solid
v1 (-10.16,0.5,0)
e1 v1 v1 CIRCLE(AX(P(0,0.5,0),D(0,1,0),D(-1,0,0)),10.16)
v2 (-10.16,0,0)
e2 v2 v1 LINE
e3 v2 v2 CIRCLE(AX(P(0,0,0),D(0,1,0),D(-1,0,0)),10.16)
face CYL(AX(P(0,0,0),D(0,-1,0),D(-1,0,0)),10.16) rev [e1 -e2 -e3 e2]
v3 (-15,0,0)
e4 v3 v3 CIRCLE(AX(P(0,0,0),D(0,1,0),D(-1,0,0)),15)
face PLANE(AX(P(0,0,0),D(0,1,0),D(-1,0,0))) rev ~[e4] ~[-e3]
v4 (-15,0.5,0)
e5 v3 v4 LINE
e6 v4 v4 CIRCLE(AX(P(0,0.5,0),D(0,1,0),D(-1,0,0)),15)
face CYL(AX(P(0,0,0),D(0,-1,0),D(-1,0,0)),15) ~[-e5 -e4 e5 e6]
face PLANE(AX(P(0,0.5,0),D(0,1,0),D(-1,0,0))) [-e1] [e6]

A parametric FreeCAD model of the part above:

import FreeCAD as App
import Part
import Sketcher

doc = App.newDocument("Part")
body = doc.addObject("PartDesign::Body", "Body")

sketch1 = body.newObject("Sketcher::SketchObject", "Sketch")
sketch1.AttachmentSupport = (doc.getObject("XZ_Plane"), [""])
sketch1.MapMode = "FlatFace"
sketch1.addGeometry([
    Part.Circle(App.Vector(0, 0, 0), App.Vector(0, 0, 1), 15),
    Part.Circle(App.Vector(0, 0, 0), App.Vector(0, 0, 1), 10),
], False)
sketch1.addConstraint([
    Sketcher.Constraint("Coincident", 0, 3, -1, 1),
    Sketcher.Constraint("Coincident", 1, 3, -1, 1),
    Sketcher.Constraint("Diameter", 0, 30.0),
    Sketcher.Constraint("Diameter", 1, 20.32),
])
pad1 = body.newObject("PartDesign::Pad", "Pad")
pad1.Profile = sketch1
pad1.Length = 0.5
pad1.Reversed = True

doc.recompute()
